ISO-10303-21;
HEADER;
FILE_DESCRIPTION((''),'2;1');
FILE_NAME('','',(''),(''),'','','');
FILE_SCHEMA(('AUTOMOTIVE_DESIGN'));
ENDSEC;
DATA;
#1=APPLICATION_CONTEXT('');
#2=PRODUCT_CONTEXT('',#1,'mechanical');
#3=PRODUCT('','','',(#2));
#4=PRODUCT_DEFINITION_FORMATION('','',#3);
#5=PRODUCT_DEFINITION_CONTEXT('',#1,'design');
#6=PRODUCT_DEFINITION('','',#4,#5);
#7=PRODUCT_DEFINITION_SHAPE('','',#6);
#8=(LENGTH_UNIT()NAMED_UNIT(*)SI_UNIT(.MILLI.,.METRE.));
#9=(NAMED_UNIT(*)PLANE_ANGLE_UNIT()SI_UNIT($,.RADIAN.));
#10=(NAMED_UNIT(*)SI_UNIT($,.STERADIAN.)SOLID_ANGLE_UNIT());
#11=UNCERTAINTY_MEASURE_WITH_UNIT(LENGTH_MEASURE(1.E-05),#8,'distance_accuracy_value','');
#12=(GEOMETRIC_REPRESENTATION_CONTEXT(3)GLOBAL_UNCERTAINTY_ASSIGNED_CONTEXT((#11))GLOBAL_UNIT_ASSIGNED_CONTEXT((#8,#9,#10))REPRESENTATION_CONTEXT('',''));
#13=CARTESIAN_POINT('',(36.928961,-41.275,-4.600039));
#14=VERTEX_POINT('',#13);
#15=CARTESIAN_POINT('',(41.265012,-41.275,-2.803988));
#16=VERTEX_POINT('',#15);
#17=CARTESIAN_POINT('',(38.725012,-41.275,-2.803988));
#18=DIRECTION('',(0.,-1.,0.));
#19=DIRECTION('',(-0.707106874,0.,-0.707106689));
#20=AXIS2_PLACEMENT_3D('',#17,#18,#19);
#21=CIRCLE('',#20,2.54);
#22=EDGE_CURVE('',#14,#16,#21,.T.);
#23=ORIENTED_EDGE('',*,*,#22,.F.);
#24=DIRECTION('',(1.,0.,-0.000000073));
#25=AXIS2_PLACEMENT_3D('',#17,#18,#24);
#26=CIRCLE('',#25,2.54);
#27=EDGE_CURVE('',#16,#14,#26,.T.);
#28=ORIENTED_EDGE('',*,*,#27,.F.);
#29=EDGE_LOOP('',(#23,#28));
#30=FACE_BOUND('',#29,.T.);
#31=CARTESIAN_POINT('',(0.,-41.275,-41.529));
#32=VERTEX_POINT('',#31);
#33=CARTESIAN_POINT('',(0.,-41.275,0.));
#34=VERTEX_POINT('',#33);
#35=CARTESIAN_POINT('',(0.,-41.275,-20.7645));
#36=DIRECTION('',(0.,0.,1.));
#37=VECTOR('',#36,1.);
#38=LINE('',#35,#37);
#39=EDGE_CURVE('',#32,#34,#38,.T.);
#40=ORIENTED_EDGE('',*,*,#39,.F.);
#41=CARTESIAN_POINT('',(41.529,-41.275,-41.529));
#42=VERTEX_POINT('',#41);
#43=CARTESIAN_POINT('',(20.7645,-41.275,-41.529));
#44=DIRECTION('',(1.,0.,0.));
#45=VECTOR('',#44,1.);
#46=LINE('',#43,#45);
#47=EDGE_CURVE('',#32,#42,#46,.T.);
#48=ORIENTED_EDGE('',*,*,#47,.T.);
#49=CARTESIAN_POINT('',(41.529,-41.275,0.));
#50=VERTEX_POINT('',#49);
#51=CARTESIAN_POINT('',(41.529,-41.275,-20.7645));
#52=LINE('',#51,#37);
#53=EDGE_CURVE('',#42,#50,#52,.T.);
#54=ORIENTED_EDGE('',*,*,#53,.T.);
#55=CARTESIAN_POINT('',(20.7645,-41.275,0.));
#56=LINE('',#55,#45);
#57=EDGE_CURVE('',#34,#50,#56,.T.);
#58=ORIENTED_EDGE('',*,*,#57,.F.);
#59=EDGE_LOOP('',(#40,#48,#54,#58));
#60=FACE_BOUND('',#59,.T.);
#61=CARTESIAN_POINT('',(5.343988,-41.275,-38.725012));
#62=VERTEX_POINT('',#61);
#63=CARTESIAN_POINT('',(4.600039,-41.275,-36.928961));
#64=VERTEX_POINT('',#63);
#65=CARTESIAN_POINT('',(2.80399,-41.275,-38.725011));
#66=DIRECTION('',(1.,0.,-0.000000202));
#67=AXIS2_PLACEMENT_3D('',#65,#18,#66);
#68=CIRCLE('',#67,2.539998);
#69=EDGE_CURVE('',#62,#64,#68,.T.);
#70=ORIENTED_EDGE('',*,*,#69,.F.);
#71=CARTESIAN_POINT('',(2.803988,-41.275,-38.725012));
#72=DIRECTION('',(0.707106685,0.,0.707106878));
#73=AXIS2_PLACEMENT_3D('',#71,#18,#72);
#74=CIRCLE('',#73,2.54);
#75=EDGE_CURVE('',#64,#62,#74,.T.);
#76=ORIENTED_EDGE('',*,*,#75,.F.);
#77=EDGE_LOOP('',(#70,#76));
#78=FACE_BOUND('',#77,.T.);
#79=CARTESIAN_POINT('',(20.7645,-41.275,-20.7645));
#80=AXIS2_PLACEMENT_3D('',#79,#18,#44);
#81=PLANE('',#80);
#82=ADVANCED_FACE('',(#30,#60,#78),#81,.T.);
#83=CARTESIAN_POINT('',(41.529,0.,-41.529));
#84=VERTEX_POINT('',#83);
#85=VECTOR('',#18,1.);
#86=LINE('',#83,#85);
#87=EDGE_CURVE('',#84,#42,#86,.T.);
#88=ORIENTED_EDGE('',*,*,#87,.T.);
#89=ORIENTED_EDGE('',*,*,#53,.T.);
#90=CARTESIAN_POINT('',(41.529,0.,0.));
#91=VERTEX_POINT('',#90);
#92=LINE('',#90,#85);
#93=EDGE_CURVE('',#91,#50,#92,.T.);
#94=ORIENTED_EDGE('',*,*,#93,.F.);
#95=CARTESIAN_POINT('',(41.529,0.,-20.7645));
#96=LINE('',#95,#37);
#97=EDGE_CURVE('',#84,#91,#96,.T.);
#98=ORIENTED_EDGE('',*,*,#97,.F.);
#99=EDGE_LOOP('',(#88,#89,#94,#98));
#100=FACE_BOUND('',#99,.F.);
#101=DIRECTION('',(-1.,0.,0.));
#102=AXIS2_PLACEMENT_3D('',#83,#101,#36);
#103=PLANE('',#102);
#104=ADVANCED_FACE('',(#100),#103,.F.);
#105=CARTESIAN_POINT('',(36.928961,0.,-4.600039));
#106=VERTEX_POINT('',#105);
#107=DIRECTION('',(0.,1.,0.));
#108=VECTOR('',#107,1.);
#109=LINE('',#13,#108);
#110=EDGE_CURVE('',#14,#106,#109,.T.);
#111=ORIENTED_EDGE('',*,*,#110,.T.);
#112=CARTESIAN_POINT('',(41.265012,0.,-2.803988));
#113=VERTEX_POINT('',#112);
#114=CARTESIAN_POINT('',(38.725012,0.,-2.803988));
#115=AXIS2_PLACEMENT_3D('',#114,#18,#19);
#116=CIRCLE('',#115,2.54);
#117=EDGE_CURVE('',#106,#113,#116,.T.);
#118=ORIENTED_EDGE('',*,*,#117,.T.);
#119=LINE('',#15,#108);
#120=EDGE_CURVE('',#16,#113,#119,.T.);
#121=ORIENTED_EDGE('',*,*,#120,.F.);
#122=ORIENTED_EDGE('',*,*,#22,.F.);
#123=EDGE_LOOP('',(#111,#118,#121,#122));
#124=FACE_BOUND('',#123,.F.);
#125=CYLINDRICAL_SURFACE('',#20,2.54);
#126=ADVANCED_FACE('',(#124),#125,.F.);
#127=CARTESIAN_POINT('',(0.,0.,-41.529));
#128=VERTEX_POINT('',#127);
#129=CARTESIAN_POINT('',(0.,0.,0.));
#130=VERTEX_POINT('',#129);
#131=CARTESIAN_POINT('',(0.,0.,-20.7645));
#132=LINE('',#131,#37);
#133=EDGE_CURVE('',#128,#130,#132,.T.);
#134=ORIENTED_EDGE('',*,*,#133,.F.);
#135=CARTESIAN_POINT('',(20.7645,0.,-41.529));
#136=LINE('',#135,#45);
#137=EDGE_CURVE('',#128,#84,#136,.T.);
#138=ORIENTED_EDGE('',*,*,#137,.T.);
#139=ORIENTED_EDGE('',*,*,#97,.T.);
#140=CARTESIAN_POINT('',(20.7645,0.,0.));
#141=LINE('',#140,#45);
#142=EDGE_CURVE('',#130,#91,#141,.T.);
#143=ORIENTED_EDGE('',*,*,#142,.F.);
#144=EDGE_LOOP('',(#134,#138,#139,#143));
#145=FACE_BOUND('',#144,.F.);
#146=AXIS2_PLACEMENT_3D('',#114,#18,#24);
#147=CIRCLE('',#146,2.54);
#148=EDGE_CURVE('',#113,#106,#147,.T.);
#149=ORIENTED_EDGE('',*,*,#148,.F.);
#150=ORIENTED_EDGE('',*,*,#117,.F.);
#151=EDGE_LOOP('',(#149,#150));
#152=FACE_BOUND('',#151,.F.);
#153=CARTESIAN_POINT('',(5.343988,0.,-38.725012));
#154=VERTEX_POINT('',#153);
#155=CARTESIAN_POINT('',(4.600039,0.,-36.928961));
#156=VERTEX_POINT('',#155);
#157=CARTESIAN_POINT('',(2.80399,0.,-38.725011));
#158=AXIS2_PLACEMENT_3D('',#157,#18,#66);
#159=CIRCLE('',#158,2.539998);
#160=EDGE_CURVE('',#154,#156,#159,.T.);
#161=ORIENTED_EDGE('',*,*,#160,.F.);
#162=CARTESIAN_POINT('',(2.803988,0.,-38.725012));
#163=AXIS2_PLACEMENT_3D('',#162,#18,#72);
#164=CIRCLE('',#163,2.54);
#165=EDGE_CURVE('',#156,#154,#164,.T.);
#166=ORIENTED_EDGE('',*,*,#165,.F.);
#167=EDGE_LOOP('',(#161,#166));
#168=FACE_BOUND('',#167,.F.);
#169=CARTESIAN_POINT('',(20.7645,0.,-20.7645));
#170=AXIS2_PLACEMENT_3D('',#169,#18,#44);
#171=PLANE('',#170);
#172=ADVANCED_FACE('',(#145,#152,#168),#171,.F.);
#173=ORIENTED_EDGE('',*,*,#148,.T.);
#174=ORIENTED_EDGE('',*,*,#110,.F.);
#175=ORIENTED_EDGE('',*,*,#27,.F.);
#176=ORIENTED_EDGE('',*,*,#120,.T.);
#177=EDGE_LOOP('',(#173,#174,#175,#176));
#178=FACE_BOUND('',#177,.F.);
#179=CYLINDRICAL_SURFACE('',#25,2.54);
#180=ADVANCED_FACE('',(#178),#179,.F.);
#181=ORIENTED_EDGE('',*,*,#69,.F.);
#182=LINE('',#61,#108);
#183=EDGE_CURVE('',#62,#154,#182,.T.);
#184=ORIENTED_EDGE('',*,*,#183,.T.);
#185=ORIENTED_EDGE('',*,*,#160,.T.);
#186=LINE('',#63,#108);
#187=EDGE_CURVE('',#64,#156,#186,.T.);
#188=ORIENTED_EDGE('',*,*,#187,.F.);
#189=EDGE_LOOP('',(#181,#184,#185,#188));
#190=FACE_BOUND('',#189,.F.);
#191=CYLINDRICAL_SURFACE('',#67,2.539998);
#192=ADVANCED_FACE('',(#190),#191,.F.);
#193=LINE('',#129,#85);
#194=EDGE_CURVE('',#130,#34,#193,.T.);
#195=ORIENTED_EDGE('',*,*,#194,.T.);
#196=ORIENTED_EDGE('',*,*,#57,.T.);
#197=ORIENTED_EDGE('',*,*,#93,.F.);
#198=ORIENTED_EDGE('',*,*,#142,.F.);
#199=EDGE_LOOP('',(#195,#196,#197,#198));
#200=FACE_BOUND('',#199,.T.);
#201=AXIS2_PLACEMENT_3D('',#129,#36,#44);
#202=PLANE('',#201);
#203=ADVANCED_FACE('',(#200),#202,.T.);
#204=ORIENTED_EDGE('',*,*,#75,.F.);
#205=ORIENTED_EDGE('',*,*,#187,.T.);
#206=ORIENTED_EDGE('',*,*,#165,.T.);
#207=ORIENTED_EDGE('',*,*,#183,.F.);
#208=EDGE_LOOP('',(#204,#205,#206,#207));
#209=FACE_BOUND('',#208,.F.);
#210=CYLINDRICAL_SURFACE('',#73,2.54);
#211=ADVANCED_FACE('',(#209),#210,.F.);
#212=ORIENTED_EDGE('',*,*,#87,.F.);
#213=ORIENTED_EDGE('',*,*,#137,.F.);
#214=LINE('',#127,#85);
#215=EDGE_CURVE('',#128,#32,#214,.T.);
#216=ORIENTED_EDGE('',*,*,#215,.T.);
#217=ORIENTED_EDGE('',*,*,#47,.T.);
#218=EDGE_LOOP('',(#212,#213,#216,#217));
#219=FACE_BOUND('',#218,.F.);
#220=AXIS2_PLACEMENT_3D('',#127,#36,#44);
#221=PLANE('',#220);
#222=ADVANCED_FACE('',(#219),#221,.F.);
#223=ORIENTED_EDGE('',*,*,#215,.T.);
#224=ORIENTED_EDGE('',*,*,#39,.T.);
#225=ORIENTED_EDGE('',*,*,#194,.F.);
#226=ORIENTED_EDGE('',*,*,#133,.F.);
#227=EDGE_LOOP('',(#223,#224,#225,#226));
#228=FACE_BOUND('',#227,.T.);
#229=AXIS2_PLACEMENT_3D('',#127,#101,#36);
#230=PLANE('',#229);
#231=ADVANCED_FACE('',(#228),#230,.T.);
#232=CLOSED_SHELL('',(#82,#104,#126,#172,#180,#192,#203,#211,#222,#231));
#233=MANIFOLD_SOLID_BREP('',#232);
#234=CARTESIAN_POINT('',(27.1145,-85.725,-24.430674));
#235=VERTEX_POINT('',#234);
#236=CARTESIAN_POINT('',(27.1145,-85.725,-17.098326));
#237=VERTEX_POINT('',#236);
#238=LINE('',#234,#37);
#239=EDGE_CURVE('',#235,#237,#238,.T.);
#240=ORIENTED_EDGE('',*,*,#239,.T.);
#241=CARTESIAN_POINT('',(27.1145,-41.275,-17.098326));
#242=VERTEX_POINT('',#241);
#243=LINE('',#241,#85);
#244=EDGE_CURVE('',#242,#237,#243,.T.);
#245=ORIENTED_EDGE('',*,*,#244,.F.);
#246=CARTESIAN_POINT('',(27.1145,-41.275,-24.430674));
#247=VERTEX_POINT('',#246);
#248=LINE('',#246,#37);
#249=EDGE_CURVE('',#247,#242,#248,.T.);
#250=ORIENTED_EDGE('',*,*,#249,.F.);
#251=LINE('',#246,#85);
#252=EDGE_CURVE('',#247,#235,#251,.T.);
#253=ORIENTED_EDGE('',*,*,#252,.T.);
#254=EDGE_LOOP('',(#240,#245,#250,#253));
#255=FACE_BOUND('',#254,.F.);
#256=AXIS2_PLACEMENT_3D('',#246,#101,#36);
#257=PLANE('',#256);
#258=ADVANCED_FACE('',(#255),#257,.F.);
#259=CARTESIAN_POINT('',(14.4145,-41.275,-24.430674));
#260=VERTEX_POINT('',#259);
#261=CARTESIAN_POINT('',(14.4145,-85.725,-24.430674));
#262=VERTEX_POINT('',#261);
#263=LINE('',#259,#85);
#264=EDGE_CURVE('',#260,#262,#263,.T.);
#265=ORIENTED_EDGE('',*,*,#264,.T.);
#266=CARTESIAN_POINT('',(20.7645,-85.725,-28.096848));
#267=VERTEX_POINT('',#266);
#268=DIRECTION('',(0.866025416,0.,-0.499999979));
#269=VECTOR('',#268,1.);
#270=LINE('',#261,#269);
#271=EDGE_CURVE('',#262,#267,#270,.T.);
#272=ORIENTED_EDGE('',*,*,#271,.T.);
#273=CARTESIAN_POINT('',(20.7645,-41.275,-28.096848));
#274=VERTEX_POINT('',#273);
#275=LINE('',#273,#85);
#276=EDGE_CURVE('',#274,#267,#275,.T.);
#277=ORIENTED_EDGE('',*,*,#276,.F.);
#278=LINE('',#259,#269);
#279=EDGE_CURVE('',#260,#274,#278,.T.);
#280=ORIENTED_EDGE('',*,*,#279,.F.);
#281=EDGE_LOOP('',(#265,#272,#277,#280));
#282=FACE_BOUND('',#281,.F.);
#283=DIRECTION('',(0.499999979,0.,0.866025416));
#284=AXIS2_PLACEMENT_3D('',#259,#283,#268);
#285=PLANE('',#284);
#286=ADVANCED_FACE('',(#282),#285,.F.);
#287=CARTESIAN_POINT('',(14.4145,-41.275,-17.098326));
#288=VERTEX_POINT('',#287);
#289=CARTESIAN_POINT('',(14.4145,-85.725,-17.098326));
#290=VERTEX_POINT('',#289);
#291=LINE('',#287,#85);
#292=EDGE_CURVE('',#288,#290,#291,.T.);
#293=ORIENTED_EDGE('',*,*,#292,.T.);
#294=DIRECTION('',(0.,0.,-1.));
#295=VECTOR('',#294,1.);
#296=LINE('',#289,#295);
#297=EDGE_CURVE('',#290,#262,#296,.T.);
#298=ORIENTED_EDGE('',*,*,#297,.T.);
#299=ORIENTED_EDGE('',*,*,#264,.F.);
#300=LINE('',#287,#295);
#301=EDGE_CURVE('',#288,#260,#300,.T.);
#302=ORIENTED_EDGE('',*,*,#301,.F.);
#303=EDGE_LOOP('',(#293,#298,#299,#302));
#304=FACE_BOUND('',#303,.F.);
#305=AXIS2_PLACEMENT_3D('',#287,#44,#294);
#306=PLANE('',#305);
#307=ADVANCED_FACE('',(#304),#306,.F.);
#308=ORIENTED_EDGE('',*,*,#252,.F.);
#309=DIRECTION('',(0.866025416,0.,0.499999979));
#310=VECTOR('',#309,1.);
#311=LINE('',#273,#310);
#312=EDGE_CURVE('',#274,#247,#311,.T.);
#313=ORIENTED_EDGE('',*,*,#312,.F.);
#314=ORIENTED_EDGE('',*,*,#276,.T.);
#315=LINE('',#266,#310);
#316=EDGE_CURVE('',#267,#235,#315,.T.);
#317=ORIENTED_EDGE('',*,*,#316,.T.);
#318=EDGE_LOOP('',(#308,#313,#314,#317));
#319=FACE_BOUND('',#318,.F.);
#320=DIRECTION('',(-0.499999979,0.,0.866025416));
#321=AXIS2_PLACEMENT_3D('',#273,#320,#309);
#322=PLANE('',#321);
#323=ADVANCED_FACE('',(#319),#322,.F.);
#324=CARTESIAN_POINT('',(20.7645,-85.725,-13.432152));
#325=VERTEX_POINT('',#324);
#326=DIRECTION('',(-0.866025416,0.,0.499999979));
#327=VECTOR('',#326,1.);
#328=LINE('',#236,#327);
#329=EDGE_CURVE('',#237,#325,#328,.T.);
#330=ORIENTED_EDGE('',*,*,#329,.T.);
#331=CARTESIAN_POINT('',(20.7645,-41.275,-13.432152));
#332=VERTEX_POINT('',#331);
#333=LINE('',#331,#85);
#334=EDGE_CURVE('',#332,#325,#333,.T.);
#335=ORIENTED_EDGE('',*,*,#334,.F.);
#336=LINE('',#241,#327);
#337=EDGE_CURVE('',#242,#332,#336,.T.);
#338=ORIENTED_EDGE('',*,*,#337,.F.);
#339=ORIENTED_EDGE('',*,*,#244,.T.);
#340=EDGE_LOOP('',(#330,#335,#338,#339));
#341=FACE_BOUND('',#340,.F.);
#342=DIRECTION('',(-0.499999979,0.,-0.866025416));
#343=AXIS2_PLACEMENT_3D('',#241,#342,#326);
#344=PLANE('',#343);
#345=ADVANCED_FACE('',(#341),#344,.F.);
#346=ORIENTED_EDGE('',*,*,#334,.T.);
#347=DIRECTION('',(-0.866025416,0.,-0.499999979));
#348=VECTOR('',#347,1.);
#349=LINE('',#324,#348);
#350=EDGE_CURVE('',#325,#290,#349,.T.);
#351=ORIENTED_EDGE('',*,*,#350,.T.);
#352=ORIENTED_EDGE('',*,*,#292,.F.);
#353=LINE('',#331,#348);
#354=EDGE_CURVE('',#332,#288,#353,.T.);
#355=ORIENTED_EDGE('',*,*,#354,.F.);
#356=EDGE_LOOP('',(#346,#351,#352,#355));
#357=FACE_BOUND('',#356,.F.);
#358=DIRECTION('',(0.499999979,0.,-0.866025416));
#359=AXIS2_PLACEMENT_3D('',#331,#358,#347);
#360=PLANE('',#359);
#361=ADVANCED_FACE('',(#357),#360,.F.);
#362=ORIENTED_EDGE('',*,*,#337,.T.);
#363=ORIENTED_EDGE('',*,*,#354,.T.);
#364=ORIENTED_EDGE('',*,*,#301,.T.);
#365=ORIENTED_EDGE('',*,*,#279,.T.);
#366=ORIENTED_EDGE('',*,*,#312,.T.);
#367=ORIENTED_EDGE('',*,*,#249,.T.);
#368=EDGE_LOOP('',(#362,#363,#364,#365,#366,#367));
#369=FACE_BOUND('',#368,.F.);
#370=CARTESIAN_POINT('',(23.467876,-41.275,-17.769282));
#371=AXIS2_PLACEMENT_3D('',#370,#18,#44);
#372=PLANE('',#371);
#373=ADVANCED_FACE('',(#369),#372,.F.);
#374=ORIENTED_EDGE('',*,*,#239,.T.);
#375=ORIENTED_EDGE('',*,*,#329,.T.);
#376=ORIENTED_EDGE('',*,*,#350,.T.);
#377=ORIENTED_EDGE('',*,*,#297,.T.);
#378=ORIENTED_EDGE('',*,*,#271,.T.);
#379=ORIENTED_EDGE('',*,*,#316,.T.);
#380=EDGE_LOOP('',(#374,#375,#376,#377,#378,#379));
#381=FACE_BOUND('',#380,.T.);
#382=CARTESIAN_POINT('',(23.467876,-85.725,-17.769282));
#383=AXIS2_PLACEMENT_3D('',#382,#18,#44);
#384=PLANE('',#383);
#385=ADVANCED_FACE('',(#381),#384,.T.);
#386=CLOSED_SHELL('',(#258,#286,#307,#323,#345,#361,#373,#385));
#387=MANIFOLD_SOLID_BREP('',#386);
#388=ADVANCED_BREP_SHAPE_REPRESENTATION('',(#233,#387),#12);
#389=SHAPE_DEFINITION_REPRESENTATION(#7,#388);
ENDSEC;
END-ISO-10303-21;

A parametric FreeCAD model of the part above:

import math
import FreeCAD as App
import Part
import Sketcher
Q = App.Units.Quantity


def add_polygon(sketch, points):
    """Adds a closed chain of lines whose ends are joined by coincident constraints."""
    first, n = sketch.GeometryCount, len(points)
    for a, b in zip(points, points[1:] + points[:1]):
        sketch.addGeometry(Part.LineSegment(App.Vector(*a, 0), App.Vector(*b, 0)), False)
    for i in range(n):
        sketch.addConstraint(Sketcher.Constraint("Coincident", first + i, 2, first + (i + 1) % n, 1))

doc = App.newDocument("Part")
body = doc.addObject("PartDesign::Body", "Body")

# Sketch on XZ plane
sketch1 = doc.addObject("Sketcher::SketchObject", "Sketch")
body.addObject(sketch1)
sketch1.AttachmentSupport = (doc.XZ_Plane, [""])
sketch1.MapMode = "FlatFace"
add_polygon(sketch1, [(0, 0), (0, -41.529), (41.529, -41.529), (41.529, 0)])  # lines 0-3
sketch1.addConstraint([
    Sketcher.Constraint("Vertical", 0),
    Sketcher.Constraint("Horizontal", 1),
    Sketcher.Constraint("Vertical", 2),
    Sketcher.Constraint("Horizontal", 3),
    Sketcher.Constraint("Coincident", 3, 2, -1, 1),
    Sketcher.Constraint("Equal", 3, 0),
    Sketcher.Constraint("DistanceX", 1, 1, 1, 2, Q("1.635 in")),
])
pad1 = doc.addObject("PartDesign::Pad", "Pad")
body.addObject(pad1)
pad1.Profile = sketch1
pad1.Length = Q("1.625 in")

# Sketch on XZ plane
sketch2 = doc.addObject("Sketcher::SketchObject", "Sketch001")
body.addObject(sketch2)
sketch2.AttachmentSupport = (doc.XZ_Plane, [""])
sketch2.MapMode = "FlatFace"
sketch2.AttachmentOffset = App.Placement(App.Vector(0, 0, 1.625 * 25.4), App.Rotation())
sketch2.addGeometry([
    Part.ArcOfCircle(Part.Circle(App.Vector(2.80399, -38.725011, 0), App.Vector(0, 0, 1), 2.539998), math.radians(-0.000012), math.radians(45.000029)),
    Part.ArcOfCircle(Part.Circle(App.Vector(2.803988, -38.725012, 0), App.Vector(0, 0, 1), 2.54), math.radians(45.000008), math.radians(360.000009)),
    Part.ArcOfCircle(Part.Circle(App.Vector(38.725012, -2.803988, 0), App.Vector(0, 0, 1), 2.54), math.radians(-135.000007), math.radians(0.000005)),
    Part.ArcOfCircle(Part.Circle(App.Vector(38.725012, -2.803988, 0), App.Vector(0, 0, 1), 2.54), math.radians(-0.000004), math.radians(225.000001)),
], False)
sketch2.addConstraint([
    Sketcher.Constraint("Tangent", 0, 1, 1, 2),
    Sketcher.Constraint("Coincident", 1, 1, 0, 2),
    Sketcher.Constraint("Tangent", 2, 1, 3, 2),
    Sketcher.Constraint("Coincident", 3, 1, 2, 2),
    Sketcher.Constraint("Equal", 1, 2),
    Sketcher.Constraint("Horizontal", 1, 3, 0, 1),
    Sketcher.Constraint("Horizontal", 2, 3, 3, 1),
    Sketcher.Constraint("Radius", 0, Q("0.0999999 in")),
    Sketcher.Constraint("DistanceX", -1, 1, 0, 3, Q("2.80399 mm")),
    Sketcher.Constraint("DistanceY", 0, 3, -1, 1, Q("38.725011 mm")),
    Sketcher.Constraint("DistanceY", 2, 3, -1, 1, Q("2.803988 mm")),
    Sketcher.Constraint("DistanceX", -1, 1, 1, 1, Q("4.600039 mm")),
    Sketcher.Constraint("DistanceX", -1, 1, 2, 1, Q("36.928961 mm")),
    Sketcher.Constraint("DistanceY", 2, 1, -1, 1, Q("4.600039 mm")),
])
pocket1 = doc.addObject("PartDesign::Pocket", "Pocket")
body.addObject(pocket1)
pocket1.Profile = sketch2
pocket1.Length = Q("5 in")
body2 = doc.addObject("PartDesign::Body", "Body001")

# Sketch on XZ plane
sketch3 = doc.addObject("Sketcher::SketchObject", "Sketch002")
body2.addObject(sketch3)
sketch3.AttachmentSupport = (doc.getObject("XZ_Plane001"), [""])
sketch3.MapMode = "FlatFace"
sketch3.AttachmentOffset = App.Placement(App.Vector(0, 0, 1.625 * 25.4), App.Rotation())
add_polygon(sketch3, [(27.1145, -17.098326), (20.7645, -13.432152), (14.4145, -17.098326), (14.4145, -24.430674), (20.7645, -28.096848), (27.1145, -24.430674)])  # lines 0-5
sketch3.addConstraint([
    Sketcher.Constraint("Vertical", 2),
    Sketcher.Constraint("Vertical", 5),
    Sketcher.Constraint("Parallel", 0, 3),
    Sketcher.Constraint("Parallel", 1, 4),
    Sketcher.Constraint("Horizontal", 2, 2, 4, 2),
    Sketcher.Constraint("Horizontal", 1, 2, 5, 2),
    Sketcher.Constraint("Vertical", 0, 2, 3, 2),
    Sketcher.Constraint("Angle", 0, Q("150.000001 deg")),
    Sketcher.Constraint("DistanceX", 2, 2, 4, 2, Q("0.5 in")),
    Sketcher.Constraint("DistanceX", -1, 1, 0, 2, Q("0.8175 in")),
    Sketcher.Constraint("DistanceY", 2, 2, 2, 1, Q("7.332348 mm")),
    Sketcher.Constraint("DistanceY", 3, 2, -1, 1, Q("28.096848 mm")),
])
pad2 = doc.addObject("PartDesign::Pad", "Pad001")
body2.addObject(pad2)
pad2.Profile = sketch3
pad2.Length = Q("1.75 in")

doc.recompute()
